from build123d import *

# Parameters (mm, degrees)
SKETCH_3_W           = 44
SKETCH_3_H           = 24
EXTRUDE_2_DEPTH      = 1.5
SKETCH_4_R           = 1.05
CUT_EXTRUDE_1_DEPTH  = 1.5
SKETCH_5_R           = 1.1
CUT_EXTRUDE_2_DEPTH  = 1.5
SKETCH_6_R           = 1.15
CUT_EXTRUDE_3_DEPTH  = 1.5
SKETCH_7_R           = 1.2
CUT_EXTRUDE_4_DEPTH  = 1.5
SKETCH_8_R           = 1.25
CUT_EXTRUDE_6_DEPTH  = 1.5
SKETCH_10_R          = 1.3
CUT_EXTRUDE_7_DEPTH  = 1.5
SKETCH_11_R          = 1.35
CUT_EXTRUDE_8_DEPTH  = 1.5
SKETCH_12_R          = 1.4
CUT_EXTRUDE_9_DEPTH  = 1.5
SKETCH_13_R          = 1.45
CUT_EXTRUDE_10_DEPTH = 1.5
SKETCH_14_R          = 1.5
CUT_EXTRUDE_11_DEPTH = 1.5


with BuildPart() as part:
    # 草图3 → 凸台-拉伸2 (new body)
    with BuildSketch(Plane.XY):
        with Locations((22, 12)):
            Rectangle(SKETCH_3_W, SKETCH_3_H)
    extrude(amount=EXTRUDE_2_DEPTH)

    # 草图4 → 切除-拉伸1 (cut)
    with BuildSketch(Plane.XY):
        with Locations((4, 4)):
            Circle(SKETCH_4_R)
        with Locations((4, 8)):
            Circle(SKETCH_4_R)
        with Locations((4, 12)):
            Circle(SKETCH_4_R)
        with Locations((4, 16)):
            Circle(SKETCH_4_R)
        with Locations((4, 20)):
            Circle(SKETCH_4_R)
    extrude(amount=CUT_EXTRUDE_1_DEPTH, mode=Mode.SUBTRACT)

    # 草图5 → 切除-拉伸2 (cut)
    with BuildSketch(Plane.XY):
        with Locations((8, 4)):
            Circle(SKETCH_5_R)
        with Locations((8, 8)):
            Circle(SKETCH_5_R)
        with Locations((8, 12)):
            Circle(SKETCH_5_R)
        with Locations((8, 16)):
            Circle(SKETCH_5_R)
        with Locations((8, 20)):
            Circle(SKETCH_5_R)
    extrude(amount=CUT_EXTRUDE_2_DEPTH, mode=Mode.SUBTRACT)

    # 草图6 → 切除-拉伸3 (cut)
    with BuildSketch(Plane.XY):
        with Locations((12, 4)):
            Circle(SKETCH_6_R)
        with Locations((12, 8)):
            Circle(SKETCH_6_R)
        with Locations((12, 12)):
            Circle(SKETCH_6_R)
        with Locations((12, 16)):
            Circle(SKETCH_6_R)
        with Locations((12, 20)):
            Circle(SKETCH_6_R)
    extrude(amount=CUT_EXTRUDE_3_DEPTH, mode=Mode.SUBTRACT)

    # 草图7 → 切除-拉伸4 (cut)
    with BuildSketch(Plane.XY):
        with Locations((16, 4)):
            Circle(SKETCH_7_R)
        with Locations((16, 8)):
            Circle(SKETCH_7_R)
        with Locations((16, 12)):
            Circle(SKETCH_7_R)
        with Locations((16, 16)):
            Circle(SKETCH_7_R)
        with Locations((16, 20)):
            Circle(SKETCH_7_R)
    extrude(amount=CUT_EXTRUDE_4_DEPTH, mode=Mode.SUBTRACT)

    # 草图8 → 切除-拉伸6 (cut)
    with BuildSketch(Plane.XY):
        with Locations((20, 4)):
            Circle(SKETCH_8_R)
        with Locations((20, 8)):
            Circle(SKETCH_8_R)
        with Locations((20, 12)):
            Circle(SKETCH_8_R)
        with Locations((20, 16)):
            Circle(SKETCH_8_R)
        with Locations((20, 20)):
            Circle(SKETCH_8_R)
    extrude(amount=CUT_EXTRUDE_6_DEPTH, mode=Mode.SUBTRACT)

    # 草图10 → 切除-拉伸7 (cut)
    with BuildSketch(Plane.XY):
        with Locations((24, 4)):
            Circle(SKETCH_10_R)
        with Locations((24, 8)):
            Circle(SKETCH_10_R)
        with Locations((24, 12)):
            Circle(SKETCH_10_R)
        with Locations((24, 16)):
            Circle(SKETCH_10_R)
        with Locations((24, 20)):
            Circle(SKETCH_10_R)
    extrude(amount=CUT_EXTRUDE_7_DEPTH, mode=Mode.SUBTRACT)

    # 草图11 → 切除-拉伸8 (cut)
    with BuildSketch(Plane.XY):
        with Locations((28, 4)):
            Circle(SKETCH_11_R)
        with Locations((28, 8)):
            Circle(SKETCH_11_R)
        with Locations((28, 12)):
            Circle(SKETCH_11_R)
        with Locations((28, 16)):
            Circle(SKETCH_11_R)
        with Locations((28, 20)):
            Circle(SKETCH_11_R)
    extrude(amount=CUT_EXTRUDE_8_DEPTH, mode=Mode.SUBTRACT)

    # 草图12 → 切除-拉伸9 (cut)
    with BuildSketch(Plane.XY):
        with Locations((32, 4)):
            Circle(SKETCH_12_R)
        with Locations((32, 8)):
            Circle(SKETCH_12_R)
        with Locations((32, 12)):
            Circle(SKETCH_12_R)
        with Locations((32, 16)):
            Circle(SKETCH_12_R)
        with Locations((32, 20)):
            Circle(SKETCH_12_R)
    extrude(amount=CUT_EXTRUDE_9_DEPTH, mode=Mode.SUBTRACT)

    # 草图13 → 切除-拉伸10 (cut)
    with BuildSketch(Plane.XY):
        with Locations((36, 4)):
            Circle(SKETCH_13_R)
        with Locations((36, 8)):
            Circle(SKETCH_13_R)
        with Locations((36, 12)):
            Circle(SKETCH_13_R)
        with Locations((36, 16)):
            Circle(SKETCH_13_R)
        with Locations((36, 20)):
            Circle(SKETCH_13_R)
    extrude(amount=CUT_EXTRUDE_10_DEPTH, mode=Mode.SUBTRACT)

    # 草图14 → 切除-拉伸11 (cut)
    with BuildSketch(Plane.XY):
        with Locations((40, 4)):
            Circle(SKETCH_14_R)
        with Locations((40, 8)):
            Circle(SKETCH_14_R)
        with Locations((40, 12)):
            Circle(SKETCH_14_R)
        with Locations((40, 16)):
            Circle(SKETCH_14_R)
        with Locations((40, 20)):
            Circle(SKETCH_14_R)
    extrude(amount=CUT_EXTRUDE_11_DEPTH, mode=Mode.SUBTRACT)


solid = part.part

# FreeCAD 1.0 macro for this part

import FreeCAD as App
import Part
import Sketcher


def add_polygon(sketch, points):
    """Adds a closed chain of lines whose ends are joined by coincident constraints."""
    first, n = sketch.GeometryCount, len(points)
    for a, b in zip(points, points[1:] + points[:1]):
        sketch.addGeometry(Part.LineSegment(App.Vector(*a, 0), App.Vector(*b, 0)), False)
    for i in range(n):
        sketch.addConstraint(Sketcher.Constraint("Coincident", first + i, 2, first + (i + 1) % n, 1))

doc = App.newDocument("Part")
params = doc.addObject("Spreadsheet::Sheet", "Params")
for row, (alias, value) in enumerate([
    ("sketch1_width", "44 mm"),
    ("sketch1_height", "24 mm"),
    ("pad1_length", "1.5 mm"),
    ("sketch2_diameter", "2.1 mm"),
    ("pocket1_length", "1.5 mm"),
    ("sketch3_diameter", "2.2 mm"),
    ("pocket2_length", "1.5 mm"),
    ("sketch4_diameter", "2.3 mm"),
    ("pocket3_length", "1.5 mm"),
    ("sketch5_diameter", "2.4 mm"),
    ("pocket4_length", "1.5 mm"),
    ("sketch6_diameter", "2.5 mm"),
    ("pocket5_length", "1.5 mm"),
    ("sketch7_diameter", "2.6 mm"),
    ("pocket6_length", "1.5 mm"),
    ("sketch8_diameter", "2.7 mm"),
    ("pocket7_length", "1.5 mm"),
    ("sketch9_diameter", "2.8 mm"),
    ("pocket8_length", "1.5 mm"),
    ("sketch10_diameter", "2.9 mm"),
    ("pocket9_length", "1.5 mm"),
    ("sketch11_diameter", "3 mm"),
    ("pocket10_length", "1.5 mm"),
], start=1):
    params.set(f"A{row}", alias)
    params.set(f"B{row}", "=" + value)
    params.setAlias(f"B{row}", alias)

body = doc.addObject("PartDesign::Body", "Body")

# Sketch on XY plane
sketch1 = body.newObject("Sketcher::SketchObject", "Sketch")
sketch1.AttachmentSupport = (doc.getObject("XY_Plane"), [""])
sketch1.MapMode = "FlatFace"
add_polygon(sketch1, [(0, 24), (0, 0), (44, 0), (44, 24)])  # lines 0-3
sketch1.addConstraint(Sketcher.Constraint("Vertical", 0))
sketch1.addConstraint(Sketcher.Constraint("Horizontal", 1))
sketch1.addConstraint(Sketcher.Constraint("Vertical", 2))
sketch1.addConstraint(Sketcher.Constraint("Horizontal", 3))
sketch1.addConstraint(Sketcher.Constraint("Coincident", 0, 2, -1, 1))
sketch1.addConstraint(Sketcher.Constraint("DistanceX", 1, 1, 1, 2, 44.0))
sketch1.addConstraint(Sketcher.Constraint("DistanceY", 0, 2, 0, 1, 24.0))
sketch1.setExpression("Constraints[9]", "Params.sketch1_width")
sketch1.setExpression("Constraints[10]", "Params.sketch1_height")
pad1 = body.newObject("PartDesign::Pad", "Pad")
pad1.Profile = sketch1
pad1.setExpression("Length", "Params.pad1_length")

# Sketch on XY plane
sketch2 = body.newObject("Sketcher::SketchObject", "Sketch001")
sketch2.AttachmentSupport = (doc.getObject("XY_Plane"), [""])
sketch2.MapMode = "FlatFace"
sketch2.addGeometry(Part.Circle(App.Vector(4, 4, 0), App.Vector(0, 0, 1), 1.1), False)
sketch2.addGeometry(Part.Circle(App.Vector(4, 8, 0), App.Vector(0, 0, 1), 1.1), False)
sketch2.addGeometry(Part.Circle(App.Vector(4, 12, 0), App.Vector(0, 0, 1), 1.1), False)
sketch2.addGeometry(Part.Circle(App.Vector(4, 16, 0), App.Vector(0, 0, 1), 1.1), False)
sketch2.addGeometry(Part.Circle(App.Vector(4, 20, 0), App.Vector(0, 0, 1), 1.1), False)
sketch2.addConstraint(Sketcher.Constraint("Equal", 0, 1))
sketch2.addConstraint(Sketcher.Constraint("Equal", 1, 2))
sketch2.addConstraint(Sketcher.Constraint("Equal", 2, 3))
sketch2.addConstraint(Sketcher.Constraint("Equal", 3, 4))
sketch2.addConstraint(Sketcher.Constraint("Vertical", 0, 3, 1, 3))
sketch2.addConstraint(Sketcher.Constraint("Vertical", 1, 3, 2, 3))
sketch2.addConstraint(Sketcher.Constraint("Vertical", 2, 3, 3, 3))
sketch2.addConstraint(Sketcher.Constraint("Vertical", 3, 3, 4, 3))
sketch2.addConstraint(Sketcher.Constraint("Diameter", 0, 2.1))
sketch2.addConstraint(Sketcher.Constraint("DistanceX", -1, 1, 0, 3, 4.0))
sketch2.addConstraint(Sketcher.Constraint("DistanceY", -1, 1, 0, 3, 4.0))
sketch2.addConstraint(Sketcher.Constraint("DistanceY", -1, 1, 1, 3, 8.0))
sketch2.addConstraint(Sketcher.Constraint("DistanceY", -1, 1, 2, 3, 12.0))
sketch2.addConstraint(Sketcher.Constraint("DistanceY", -1, 1, 3, 3, 16.0))
sketch2.addConstraint(Sketcher.Constraint("DistanceY", -1, 1, 4, 3, 20.0))
sketch2.setExpression("Constraints[8]", "Params.sketch2_diameter")
pocket1 = body.newObject("PartDesign::Pocket", "Pocket")
pocket1.Profile = sketch2
pocket1.setExpression("Length", "Params.pocket1_length")
pocket1.Reversed = True

# Sketch on XY plane
sketch3 = body.newObject("Sketcher::SketchObject", "Sketch002")
sketch3.AttachmentSupport = (doc.getObject("XY_Plane"), [""])
sketch3.MapMode = "FlatFace"
sketch3.addGeometry(Part.Circle(App.Vector(8, 4, 0), App.Vector(0, 0, 1), 1.1), False)
sketch3.addGeometry(Part.Circle(App.Vector(8, 8, 0), App.Vector(0, 0, 1), 1.1), False)
sketch3.addGeometry(Part.Circle(App.Vector(8, 12, 0), App.Vector(0, 0, 1), 1.1), False)
sketch3.addGeometry(Part.Circle(App.Vector(8, 16, 0), App.Vector(0, 0, 1), 1.1), False)
sketch3.addGeometry(Part.Circle(App.Vector(8, 20, 0), App.Vector(0, 0, 1), 1.1), False)
sketch3.addConstraint(Sketcher.Constraint("Equal", 0, 1))
sketch3.addConstraint(Sketcher.Constraint("Equal", 1, 2))
sketch3.addConstraint(Sketcher.Constraint("Equal", 2, 3))
sketch3.addConstraint(Sketcher.Constraint("Equal", 3, 4))
sketch3.addConstraint(Sketcher.Constraint("Vertical", 0, 3, 1, 3))
sketch3.addConstraint(Sketcher.Constraint("Vertical", 1, 3, 2, 3))
sketch3.addConstraint(Sketcher.Constraint("Vertical", 2, 3, 3, 3))
sketch3.addConstraint(Sketcher.Constraint("Vertical", 3, 3, 4, 3))
sketch3.addConstraint(Sketcher.Constraint("Diameter", 0, 2.2))
sketch3.addConstraint(Sketcher.Constraint("DistanceX", -1, 1, 0, 3, 8.0))
sketch3.addConstraint(Sketcher.Constraint("DistanceY", -1, 1, 0, 3, 4.0))
sketch3.addConstraint(Sketcher.Constraint("DistanceY", -1, 1, 1, 3, 8.0))
sketch3.addConstraint(Sketcher.Constraint("DistanceY", -1, 1, 2, 3, 12.0))
sketch3.addConstraint(Sketcher.Constraint("DistanceY", -1, 1, 3, 3, 16.0))
sketch3.addConstraint(Sketcher.Constraint("DistanceY", -1, 1, 4, 3, 20.0))
sketch3.setExpression("Constraints[8]", "Params.sketch3_diameter")
pocket2 = body.newObject("PartDesign::Pocket", "Pocket001")
pocket2.Profile = sketch3
pocket2.setExpression("Length", "Params.pocket2_length")
pocket2.Reversed = True

# Sketch on XY plane
sketch4 = body.newObject("Sketcher::SketchObject", "Sketch003")
sketch4.AttachmentSupport = (doc.getObject("XY_Plane"), [""])
sketch4.MapMode = "FlatFace"
sketch4.addGeometry(Part.Circle(App.Vector(12, 4, 0), App.Vector(0, 0, 1), 1.1), False)
sketch4.addGeometry(Part.Circle(App.Vector(12, 8, 0), App.Vector(0, 0, 1), 1.1), False)
sketch4.addGeometry(Part.Circle(App.Vector(12, 12, 0), App.Vector(0, 0, 1), 1.1), False)
sketch4.addGeometry(Part.Circle(App.Vector(12, 16, 0), App.Vector(0, 0, 1), 1.1), False)
sketch4.addGeometry(Part.Circle(App.Vector(12, 20, 0), App.Vector(0, 0, 1), 1.1), False)
sketch4.addConstraint(Sketcher.Constraint("Equal", 0, 1))
sketch4.addConstraint(Sketcher.Constraint("Equal", 1, 2))
sketch4.addConstraint(Sketcher.Constraint("Equal", 2, 3))
sketch4.addConstraint(Sketcher.Constraint("Equal", 3, 4))
sketch4.addConstraint(Sketcher.Constraint("Vertical", 0, 3, 1, 3))
sketch4.addConstraint(Sketcher.Constraint("Vertical", 1, 3, 2, 3))
sketch4.addConstraint(Sketcher.Constraint("Vertical", 2, 3, 3, 3))
sketch4.addConstraint(Sketcher.Constraint("Vertical", 3, 3, 4, 3))
sketch4.addConstraint(Sketcher.Constraint("Diameter", 0, 2.3))
sketch4.addConstraint(Sketcher.Constraint("DistanceX", -1, 1, 0, 3, 12.0))
sketch4.addConstraint(Sketcher.Constraint("DistanceY", -1, 1, 0, 3, 4.0))
sketch4.addConstraint(Sketcher.Constraint("DistanceY", -1, 1, 1, 3, 8.0))
sketch4.addConstraint(Sketcher.Constraint("DistanceY", -1, 1, 2, 3, 12.0))
sketch4.addConstraint(Sketcher.Constraint("DistanceY", -1, 1, 3, 3, 16.0))
sketch4.addConstraint(Sketcher.Constraint("DistanceY", -1, 1, 4, 3, 20.0))
sketch4.setExpression("Constraints[8]", "Params.sketch4_diameter")
pocket3 = body.newObject("PartDesign::Pocket", "Pocket002")
pocket3.Profile = sketch4
pocket3.setExpression("Length", "Params.pocket3_length")
pocket3.Reversed = True

# Sketch on XY plane
sketch5 = body.newObject("Sketcher::SketchObject", "Sketch004")
sketch5.AttachmentSupport = (doc.getObject("XY_Plane"), [""])
sketch5.MapMode = "FlatFace"
sketch5.addGeometry(Part.Circle(App.Vector(16, 4, 0), App.Vector(0, 0, 1), 1.2), False)
sketch5.addGeometry(Part.Circle(App.Vector(16, 8, 0), App.Vector(0, 0, 1), 1.2), False)
sketch5.addGeometry(Part.Circle(App.Vector(16, 12, 0), App.Vector(0, 0, 1), 1.2), False)
sketch5.addGeometry(Part.Circle(App.Vector(16, 16, 0), App.Vector(0, 0, 1), 1.2), False)
sketch5.addGeometry(Part.Circle(App.Vector(16, 20, 0), App.Vector(0, 0, 1), 1.2), False)
sketch5.addConstraint(Sketcher.Constraint("Equal", 0, 1))
sketch5.addConstraint(Sketcher.Constraint("Equal", 1, 2))
sketch5.addConstraint(Sketcher.Constraint("Equal", 2, 3))
sketch5.addConstraint(Sketcher.Constraint("Equal", 3, 4))
sketch5.addConstraint(Sketcher.Constraint("Vertical", 0, 3, 1, 3))
sketch5.addConstraint(Sketcher.Constraint("Vertical", 1, 3, 2, 3))
sketch5.addConstraint(Sketcher.Constraint("Vertical", 2, 3, 3, 3))
sketch5.addConstraint(Sketcher.Constraint("Vertical", 3, 3, 4, 3))
sketch5.addConstraint(Sketcher.Constraint("Diameter", 0, 2.4))
sketch5.addConstraint(Sketcher.Constraint("DistanceX", -1, 1, 0, 3, 16.0))
sketch5.addConstraint(Sketcher.Constraint("DistanceY", -1, 1, 0, 3, 4.0))
sketch5.addConstraint(Sketcher.Constraint("DistanceY", -1, 1, 1, 3, 8.0))
sketch5.addConstraint(Sketcher.Constraint("DistanceY", -1, 1, 2, 3, 12.0))
sketch5.addConstraint(Sketcher.Constraint("DistanceY", -1, 1, 3, 3, 16.0))
sketch5.addConstraint(Sketcher.Constraint("DistanceY", -1, 1, 4, 3, 20.0))
sketch5.setExpression("Constraints[8]", "Params.sketch5_diameter")
pocket4 = body.newObject("PartDesign::Pocket", "Pocket003")
pocket4.Profile = sketch5
pocket4.setExpression("Length", "Params.pocket4_length")
pocket4.Reversed = True

# Sketch on XY plane
sketch6 = body.newObject("Sketcher::SketchObject", "Sketch005")
sketch6.AttachmentSupport = (doc.getObject("XY_Plane"), [""])
sketch6.MapMode = "FlatFace"
sketch6.addGeometry(Part.Circle(App.Vector(20, 4, 0), App.Vector(0, 0, 1), 1.2), False)
sketch6.addGeometry(Part.Circle(App.Vector(20, 8, 0), App.Vector(0, 0, 1), 1.2), False)
sketch6.addGeometry(Part.Circle(App.Vector(20, 12, 0), App.Vector(0, 0, 1), 1.2), False)
sketch6.addGeometry(Part.Circle(App.Vector(20, 16, 0), App.Vector(0, 0, 1), 1.2), False)
sketch6.addGeometry(Part.Circle(App.Vector(20, 20, 0), App.Vector(0, 0, 1), 1.2), False)
sketch6.addConstraint(Sketcher.Constraint("Equal", 0, 1))
sketch6.addConstraint(Sketcher.Constraint("Equal", 1, 2))
sketch6.addConstraint(Sketcher.Constraint("Equal", 2, 3))
sketch6.addConstraint(Sketcher.Constraint("Equal", 3, 4))
sketch6.addConstraint(Sketcher.Constraint("Vertical", 0, 3, 1, 3))
sketch6.addConstraint(Sketcher.Constraint("Vertical", 1, 3, 2, 3))
sketch6.addConstraint(Sketcher.Constraint("Vertical", 2, 3, 3, 3))
sketch6.addConstraint(Sketcher.Constraint("Vertical", 3, 3, 4, 3))
sketch6.addConstraint(Sketcher.Constraint("Diameter", 0, 2.5))
sketch6.addConstraint(Sketcher.Constraint("DistanceX", -1, 1, 0, 3, 20.0))
sketch6.addConstraint(Sketcher.Constraint("DistanceY", -1, 1, 0, 3, 4.0))
sketch6.addConstraint(Sketcher.Constraint("DistanceY", -1, 1, 1, 3, 8.0))
sketch6.addConstraint(Sketcher.Constraint("DistanceY", -1, 1, 2, 3, 12.0))
sketch6.addConstraint(Sketcher.Constraint("DistanceY", -1, 1, 3, 3, 16.0))
sketch6.addConstraint(Sketcher.Constraint("DistanceY", -1, 1, 4, 3, 20.0))
sketch6.setExpression("Constraints[8]", "Params.sketch6_diameter")
pocket5 = body.newObject("PartDesign::Pocket", "Pocket004")
pocket5.Profile = sketch6
pocket5.setExpression("Length", "Params.pocket5_length")
pocket5.Reversed = True

# Sketch on XY plane
sketch7 = body.newObject("Sketcher::SketchObject", "Sketch006")
sketch7.AttachmentSupport = (doc.getObject("XY_Plane"), [""])
sketch7.MapMode = "FlatFace"
sketch7.addGeometry(Part.Circle(App.Vector(24, 4, 0), App.Vector(0, 0, 1), 1.3), False)
sketch7.addGeometry(Part.Circle(App.Vector(24, 8, 0), App.Vector(0, 0, 1), 1.3), False)
sketch7.addGeometry(Part.Circle(App.Vector(24, 12, 0), App.Vector(0, 0, 1), 1.3), False)
sketch7.addGeometry(Part.Circle(App.Vector(24, 16, 0), App.Vector(0, 0, 1), 1.3), False)
sketch7.addGeometry(Part.Circle(App.Vector(24, 20, 0), App.Vector(0, 0, 1), 1.3), False)
sketch7.addConstraint(Sketcher.Constraint("Equal", 0, 1))
sketch7.addConstraint(Sketcher.Constraint("Equal", 1, 2))
sketch7.addConstraint(Sketcher.Constraint("Equal", 2, 3))
sketch7.addConstraint(Sketcher.Constraint("Equal", 3, 4))
sketch7.addConstraint(Sketcher.Constraint("Vertical", 0, 3, 1, 3))
sketch7.addConstraint(Sketcher.Constraint("Vertical", 1, 3, 2, 3))
sketch7.addConstraint(Sketcher.Constraint("Vertical", 2, 3, 3, 3))
sketch7.addConstraint(Sketcher.Constraint("Vertical", 3, 3, 4, 3))
sketch7.addConstraint(Sketcher.Constraint("Diameter", 0, 2.6))
sketch7.addConstraint(Sketcher.Constraint("DistanceX", -1, 1, 0, 3, 24.0))
sketch7.addConstraint(Sketcher.Constraint("DistanceY", -1, 1, 0, 3, 4.0))
sketch7.addConstraint(Sketcher.Constraint("DistanceY", -1, 1, 1, 3, 8.0))
sketch7.addConstraint(Sketcher.Constraint("DistanceY", -1, 1, 2, 3, 12.0))
sketch7.addConstraint(Sketcher.Constraint("DistanceY", -1, 1, 3, 3, 16.0))
sketch7.addConstraint(Sketcher.Constraint("DistanceY", -1, 1, 4, 3, 20.0))
sketch7.setExpression("Constraints[8]", "Params.sketch7_diameter")
pocket6 = body.newObject("PartDesign::Pocket", "Pocket005")
pocket6.Profile = sketch7
pocket6.setExpression("Length", "Params.pocket6_length")
pocket6.Reversed = True

# Sketch on XY plane
sketch8 = body.newObject("Sketcher::SketchObject", "Sketch007")
sketch8.AttachmentSupport = (doc.getObject("XY_Plane"), [""])
sketch8.MapMode = "FlatFace"
sketch8.addGeometry(Part.Circle(App.Vector(28, 4, 0), App.Vector(0, 0, 1), 1.4), False)
sketch8.addGeometry(Part.Circle(App.Vector(28, 8, 0), App.Vector(0, 0, 1), 1.4), False)
sketch8.addGeometry(Part.Circle(App.Vector(28, 12, 0), App.Vector(0, 0, 1), 1.4), False)
sketch8.addGeometry(Part.Circle(App.Vector(28, 16, 0), App.Vector(0, 0, 1), 1.4), False)
sketch8.addGeometry(Part.Circle(App.Vector(28, 20, 0), App.Vector(0, 0, 1), 1.4), False)
sketch8.addConstraint(Sketcher.Constraint("Equal", 0, 1))
sketch8.addConstraint(Sketcher.Constraint("Equal", 1, 2))
sketch8.addConstraint(Sketcher.Constraint("Equal", 2, 3))
sketch8.addConstraint(Sketcher.Constraint("Equal", 3, 4))
sketch8.addConstraint(Sketcher.Constraint("Vertical", 0, 3, 1, 3))
sketch8.addConstraint(Sketcher.Constraint("Vertical", 1, 3, 2, 3))
sketch8.addConstraint(Sketcher.Constraint("Vertical", 2, 3, 3, 3))
sketch8.addConstraint(Sketcher.Constraint("Vertical", 3, 3, 4, 3))
sketch8.addConstraint(Sketcher.Constraint("Diameter", 0, 2.7))
sketch8.addConstraint(Sketcher.Constraint("DistanceX", -1, 1, 0, 3, 28.0))
sketch8.addConstraint(Sketcher.Constraint("DistanceY", -1, 1, 0, 3, 4.0))
sketch8.addConstraint(Sketcher.Constraint("DistanceY", -1, 1, 1, 3, 8.0))
sketch8.addConstraint(Sketcher.Constraint("DistanceY", -1, 1, 2, 3, 12.0))
sketch8.addConstraint(Sketcher.Constraint("DistanceY", -1, 1, 3, 3, 16.0))
sketch8.addConstraint(Sketcher.Constraint("DistanceY", -1, 1, 4, 3, 20.0))
sketch8.setExpression("Constraints[8]", "Params.sketch8_diameter")
pocket7 = body.newObject("PartDesign::Pocket", "Pocket006")
pocket7.Profile = sketch8
pocket7.setExpression("Length", "Params.pocket7_length")
pocket7.Reversed = True

# Sketch on XY plane
sketch9 = body.newObject("Sketcher::SketchObject", "Sketch008")
sketch9.AttachmentSupport = (doc.getObject("XY_Plane"), [""])
sketch9.MapMode = "FlatFace"
sketch9.addGeometry(Part.Circle(App.Vector(32, 4, 0), App.Vector(0, 0, 1), 1.4), False)
sketch9.addGeometry(Part.Circle(App.Vector(32, 8, 0), App.Vector(0, 0, 1), 1.4), False)
sketch9.addGeometry(Part.Circle(App.Vector(32, 12, 0), App.Vector(0, 0, 1), 1.4), False)
sketch9.addGeometry(Part.Circle(App.Vector(32, 16, 0), App.Vector(0, 0, 1), 1.4), False)
sketch9.addGeometry(Part.Circle(App.Vector(32, 20, 0), App.Vector(0, 0, 1), 1.4), False)
sketch9.addConstraint(Sketcher.Constraint("Equal", 0, 1))
sketch9.addConstraint(Sketcher.Constraint("Equal", 1, 2))
sketch9.addConstraint(Sketcher.Constraint("Equal", 2, 3))
sketch9.addConstraint(Sketcher.Constraint("Equal", 3, 4))
sketch9.addConstraint(Sketcher.Constraint("Vertical", 0, 3, 1, 3))
sketch9.addConstraint(Sketcher.Constraint("Vertical", 1, 3, 2, 3))
sketch9.addConstraint(Sketcher.Constraint("Vertical", 2, 3, 3, 3))
sketch9.addConstraint(Sketcher.Constraint("Vertical", 3, 3, 4, 3))
sketch9.addConstraint(Sketcher.Constraint("Diameter", 0, 2.8))
sketch9.addConstraint(Sketcher.Constraint("DistanceX", -1, 1, 0, 3, 32.0))
sketch9.addConstraint(Sketcher.Constraint("DistanceY", -1, 1, 0, 3, 4.0))
sketch9.addConstraint(Sketcher.Constraint("DistanceY", -1, 1, 1, 3, 8.0))
sketch9.addConstraint(Sketcher.Constraint("DistanceY", -1, 1, 2, 3, 12.0))
sketch9.addConstraint(Sketcher.Constraint("DistanceY", -1, 1, 3, 3, 16.0))
sketch9.addConstraint(Sketcher.Constraint("DistanceY", -1, 1, 4, 3, 20.0))
sketch9.setExpression("Constraints[8]", "Params.sketch9_diameter")
pocket8 = body.newObject("PartDesign::Pocket", "Pocket007")
pocket8.Profile = sketch9
pocket8.setExpression("Length", "Params.pocket8_length")
pocket8.Reversed = True

# Sketch on XY plane
sketch10 = body.newObject("Sketcher::SketchObject", "Sketch009")
sketch10.AttachmentSupport = (doc.getObject("XY_Plane"), [""])
sketch10.MapMode = "FlatFace"
sketch10.addGeometry(Part.Circle(App.Vector(36, 4, 0), App.Vector(0, 0, 1), 1.4), False)
sketch10.addGeometry(Part.Circle(App.Vector(36, 8, 0), App.Vector(0, 0, 1), 1.4), False)
sketch10.addGeometry(Part.Circle(App.Vector(36, 12, 0), App.Vector(0, 0, 1), 1.4), False)
sketch10.addGeometry(Part.Circle(App.Vector(36, 16, 0), App.Vector(0, 0, 1), 1.4), False)
sketch10.addGeometry(Part.Circle(App.Vector(36, 20, 0), App.Vector(0, 0, 1), 1.4), False)
sketch10.addConstraint(Sketcher.Constraint("Equal", 0, 1))
sketch10.addConstraint(Sketcher.Constraint("Equal", 1, 2))
sketch10.addConstraint(Sketcher.Constraint("Equal", 2, 3))
sketch10.addConstraint(Sketcher.Constraint("Equal", 3, 4))
sketch10.addConstraint(Sketcher.Constraint("Vertical", 0, 3, 1, 3))
sketch10.addConstraint(Sketcher.Constraint("Vertical", 1, 3, 2, 3))
sketch10.addConstraint(Sketcher.Constraint("Vertical", 2, 3, 3, 3))
sketch10.addConstraint(Sketcher.Constraint("Vertical", 3, 3, 4, 3))
sketch10.addConstraint(Sketcher.Constraint("Diameter", 0, 2.9))
sketch10.addConstraint(Sketcher.Constraint("DistanceX", -1, 1, 0, 3, 36.0))
sketch10.addConstraint(Sketcher.Constraint("DistanceY", -1, 1, 0, 3, 4.0))
sketch10.addConstraint(Sketcher.Constraint("DistanceY", -1, 1, 1, 3, 8.0))
sketch10.addConstraint(Sketcher.Constraint("DistanceY", -1, 1, 2, 3, 12.0))
sketch10.addConstraint(Sketcher.Constraint("DistanceY", -1, 1, 3, 3, 16.0))
sketch10.addConstraint(Sketcher.Constraint("DistanceY", -1, 1, 4, 3, 20.0))
sketch10.setExpression("Constraints[8]", "Params.sketch10_diameter")
pocket9 = body.newObject("PartDesign::Pocket", "Pocket008")
pocket9.Profile = sketch10
pocket9.setExpression("Length", "Params.pocket9_length")
pocket9.Reversed = True

# Sketch on XY plane
sketch11 = body.newObject("Sketcher::SketchObject", "Sketch010")
sketch11.AttachmentSupport = (doc.getObject("XY_Plane"), [""])
sketch11.MapMode = "FlatFace"
sketch11.addGeometry(Part.Circle(App.Vector(40, 4, 0), App.Vector(0, 0, 1), 1.5), False)
sketch11.addGeometry(Part.Circle(App.Vector(40, 8, 0), App.Vector(0, 0, 1), 1.5), False)
sketch11.addGeometry(Part.Circle(App.Vector(40, 12, 0), App.Vector(0, 0, 1), 1.5), False)
sketch11.addGeometry(Part.Circle(App.Vector(40, 16, 0), App.Vector(0, 0, 1), 1.5), False)
sketch11.addGeometry(Part.Circle(App.Vector(40, 20, 0), App.Vector(0, 0, 1), 1.5), False)
sketch11.addConstraint(Sketcher.Constraint("Equal", 0, 1))
sketch11.addConstraint(Sketcher.Constraint("Equal", 1, 2))
sketch11.addConstraint(Sketcher.Constraint("Equal", 2, 3))
sketch11.addConstraint(Sketcher.Constraint("Equal", 3, 4))
sketch11.addConstraint(Sketcher.Constraint("Vertical", 0, 3, 1, 3))
sketch11.addConstraint(Sketcher.Constraint("Vertical", 1, 3, 2, 3))
sketch11.addConstraint(Sketcher.Constraint("Vertical", 2, 3, 3, 3))
sketch11.addConstraint(Sketcher.Constraint("Vertical", 3, 3, 4, 3))
sketch11.addConstraint(Sketcher.Constraint("Diameter", 0, 3.0))
sketch11.addConstraint(Sketcher.Constraint("DistanceX", -1, 1, 0, 3, 40.0))
sketch11.addConstraint(Sketcher.Constraint("DistanceY", -1, 1, 0, 3, 4.0))
sketch11.addConstraint(Sketcher.Constraint("DistanceY", -1, 1, 1, 3, 8.0))
sketch11.addConstraint(Sketcher.Constraint("DistanceY", -1, 1, 2, 3, 12.0))
sketch11.addConstraint(Sketcher.Constraint("DistanceY", -1, 1, 3, 3, 16.0))
sketch11.addConstraint(Sketcher.Constraint("DistanceY", -1, 1, 4, 3, 20.0))
sketch11.setExpression("Constraints[8]", "Params.sketch11_diameter")
pocket10 = body.newObject("PartDesign::Pocket", "Pocket009")
pocket10.Profile = sketch11
pocket10.setExpression("Length", "Params.pocket10_length")
pocket10.Reversed = True

doc.recompute()
